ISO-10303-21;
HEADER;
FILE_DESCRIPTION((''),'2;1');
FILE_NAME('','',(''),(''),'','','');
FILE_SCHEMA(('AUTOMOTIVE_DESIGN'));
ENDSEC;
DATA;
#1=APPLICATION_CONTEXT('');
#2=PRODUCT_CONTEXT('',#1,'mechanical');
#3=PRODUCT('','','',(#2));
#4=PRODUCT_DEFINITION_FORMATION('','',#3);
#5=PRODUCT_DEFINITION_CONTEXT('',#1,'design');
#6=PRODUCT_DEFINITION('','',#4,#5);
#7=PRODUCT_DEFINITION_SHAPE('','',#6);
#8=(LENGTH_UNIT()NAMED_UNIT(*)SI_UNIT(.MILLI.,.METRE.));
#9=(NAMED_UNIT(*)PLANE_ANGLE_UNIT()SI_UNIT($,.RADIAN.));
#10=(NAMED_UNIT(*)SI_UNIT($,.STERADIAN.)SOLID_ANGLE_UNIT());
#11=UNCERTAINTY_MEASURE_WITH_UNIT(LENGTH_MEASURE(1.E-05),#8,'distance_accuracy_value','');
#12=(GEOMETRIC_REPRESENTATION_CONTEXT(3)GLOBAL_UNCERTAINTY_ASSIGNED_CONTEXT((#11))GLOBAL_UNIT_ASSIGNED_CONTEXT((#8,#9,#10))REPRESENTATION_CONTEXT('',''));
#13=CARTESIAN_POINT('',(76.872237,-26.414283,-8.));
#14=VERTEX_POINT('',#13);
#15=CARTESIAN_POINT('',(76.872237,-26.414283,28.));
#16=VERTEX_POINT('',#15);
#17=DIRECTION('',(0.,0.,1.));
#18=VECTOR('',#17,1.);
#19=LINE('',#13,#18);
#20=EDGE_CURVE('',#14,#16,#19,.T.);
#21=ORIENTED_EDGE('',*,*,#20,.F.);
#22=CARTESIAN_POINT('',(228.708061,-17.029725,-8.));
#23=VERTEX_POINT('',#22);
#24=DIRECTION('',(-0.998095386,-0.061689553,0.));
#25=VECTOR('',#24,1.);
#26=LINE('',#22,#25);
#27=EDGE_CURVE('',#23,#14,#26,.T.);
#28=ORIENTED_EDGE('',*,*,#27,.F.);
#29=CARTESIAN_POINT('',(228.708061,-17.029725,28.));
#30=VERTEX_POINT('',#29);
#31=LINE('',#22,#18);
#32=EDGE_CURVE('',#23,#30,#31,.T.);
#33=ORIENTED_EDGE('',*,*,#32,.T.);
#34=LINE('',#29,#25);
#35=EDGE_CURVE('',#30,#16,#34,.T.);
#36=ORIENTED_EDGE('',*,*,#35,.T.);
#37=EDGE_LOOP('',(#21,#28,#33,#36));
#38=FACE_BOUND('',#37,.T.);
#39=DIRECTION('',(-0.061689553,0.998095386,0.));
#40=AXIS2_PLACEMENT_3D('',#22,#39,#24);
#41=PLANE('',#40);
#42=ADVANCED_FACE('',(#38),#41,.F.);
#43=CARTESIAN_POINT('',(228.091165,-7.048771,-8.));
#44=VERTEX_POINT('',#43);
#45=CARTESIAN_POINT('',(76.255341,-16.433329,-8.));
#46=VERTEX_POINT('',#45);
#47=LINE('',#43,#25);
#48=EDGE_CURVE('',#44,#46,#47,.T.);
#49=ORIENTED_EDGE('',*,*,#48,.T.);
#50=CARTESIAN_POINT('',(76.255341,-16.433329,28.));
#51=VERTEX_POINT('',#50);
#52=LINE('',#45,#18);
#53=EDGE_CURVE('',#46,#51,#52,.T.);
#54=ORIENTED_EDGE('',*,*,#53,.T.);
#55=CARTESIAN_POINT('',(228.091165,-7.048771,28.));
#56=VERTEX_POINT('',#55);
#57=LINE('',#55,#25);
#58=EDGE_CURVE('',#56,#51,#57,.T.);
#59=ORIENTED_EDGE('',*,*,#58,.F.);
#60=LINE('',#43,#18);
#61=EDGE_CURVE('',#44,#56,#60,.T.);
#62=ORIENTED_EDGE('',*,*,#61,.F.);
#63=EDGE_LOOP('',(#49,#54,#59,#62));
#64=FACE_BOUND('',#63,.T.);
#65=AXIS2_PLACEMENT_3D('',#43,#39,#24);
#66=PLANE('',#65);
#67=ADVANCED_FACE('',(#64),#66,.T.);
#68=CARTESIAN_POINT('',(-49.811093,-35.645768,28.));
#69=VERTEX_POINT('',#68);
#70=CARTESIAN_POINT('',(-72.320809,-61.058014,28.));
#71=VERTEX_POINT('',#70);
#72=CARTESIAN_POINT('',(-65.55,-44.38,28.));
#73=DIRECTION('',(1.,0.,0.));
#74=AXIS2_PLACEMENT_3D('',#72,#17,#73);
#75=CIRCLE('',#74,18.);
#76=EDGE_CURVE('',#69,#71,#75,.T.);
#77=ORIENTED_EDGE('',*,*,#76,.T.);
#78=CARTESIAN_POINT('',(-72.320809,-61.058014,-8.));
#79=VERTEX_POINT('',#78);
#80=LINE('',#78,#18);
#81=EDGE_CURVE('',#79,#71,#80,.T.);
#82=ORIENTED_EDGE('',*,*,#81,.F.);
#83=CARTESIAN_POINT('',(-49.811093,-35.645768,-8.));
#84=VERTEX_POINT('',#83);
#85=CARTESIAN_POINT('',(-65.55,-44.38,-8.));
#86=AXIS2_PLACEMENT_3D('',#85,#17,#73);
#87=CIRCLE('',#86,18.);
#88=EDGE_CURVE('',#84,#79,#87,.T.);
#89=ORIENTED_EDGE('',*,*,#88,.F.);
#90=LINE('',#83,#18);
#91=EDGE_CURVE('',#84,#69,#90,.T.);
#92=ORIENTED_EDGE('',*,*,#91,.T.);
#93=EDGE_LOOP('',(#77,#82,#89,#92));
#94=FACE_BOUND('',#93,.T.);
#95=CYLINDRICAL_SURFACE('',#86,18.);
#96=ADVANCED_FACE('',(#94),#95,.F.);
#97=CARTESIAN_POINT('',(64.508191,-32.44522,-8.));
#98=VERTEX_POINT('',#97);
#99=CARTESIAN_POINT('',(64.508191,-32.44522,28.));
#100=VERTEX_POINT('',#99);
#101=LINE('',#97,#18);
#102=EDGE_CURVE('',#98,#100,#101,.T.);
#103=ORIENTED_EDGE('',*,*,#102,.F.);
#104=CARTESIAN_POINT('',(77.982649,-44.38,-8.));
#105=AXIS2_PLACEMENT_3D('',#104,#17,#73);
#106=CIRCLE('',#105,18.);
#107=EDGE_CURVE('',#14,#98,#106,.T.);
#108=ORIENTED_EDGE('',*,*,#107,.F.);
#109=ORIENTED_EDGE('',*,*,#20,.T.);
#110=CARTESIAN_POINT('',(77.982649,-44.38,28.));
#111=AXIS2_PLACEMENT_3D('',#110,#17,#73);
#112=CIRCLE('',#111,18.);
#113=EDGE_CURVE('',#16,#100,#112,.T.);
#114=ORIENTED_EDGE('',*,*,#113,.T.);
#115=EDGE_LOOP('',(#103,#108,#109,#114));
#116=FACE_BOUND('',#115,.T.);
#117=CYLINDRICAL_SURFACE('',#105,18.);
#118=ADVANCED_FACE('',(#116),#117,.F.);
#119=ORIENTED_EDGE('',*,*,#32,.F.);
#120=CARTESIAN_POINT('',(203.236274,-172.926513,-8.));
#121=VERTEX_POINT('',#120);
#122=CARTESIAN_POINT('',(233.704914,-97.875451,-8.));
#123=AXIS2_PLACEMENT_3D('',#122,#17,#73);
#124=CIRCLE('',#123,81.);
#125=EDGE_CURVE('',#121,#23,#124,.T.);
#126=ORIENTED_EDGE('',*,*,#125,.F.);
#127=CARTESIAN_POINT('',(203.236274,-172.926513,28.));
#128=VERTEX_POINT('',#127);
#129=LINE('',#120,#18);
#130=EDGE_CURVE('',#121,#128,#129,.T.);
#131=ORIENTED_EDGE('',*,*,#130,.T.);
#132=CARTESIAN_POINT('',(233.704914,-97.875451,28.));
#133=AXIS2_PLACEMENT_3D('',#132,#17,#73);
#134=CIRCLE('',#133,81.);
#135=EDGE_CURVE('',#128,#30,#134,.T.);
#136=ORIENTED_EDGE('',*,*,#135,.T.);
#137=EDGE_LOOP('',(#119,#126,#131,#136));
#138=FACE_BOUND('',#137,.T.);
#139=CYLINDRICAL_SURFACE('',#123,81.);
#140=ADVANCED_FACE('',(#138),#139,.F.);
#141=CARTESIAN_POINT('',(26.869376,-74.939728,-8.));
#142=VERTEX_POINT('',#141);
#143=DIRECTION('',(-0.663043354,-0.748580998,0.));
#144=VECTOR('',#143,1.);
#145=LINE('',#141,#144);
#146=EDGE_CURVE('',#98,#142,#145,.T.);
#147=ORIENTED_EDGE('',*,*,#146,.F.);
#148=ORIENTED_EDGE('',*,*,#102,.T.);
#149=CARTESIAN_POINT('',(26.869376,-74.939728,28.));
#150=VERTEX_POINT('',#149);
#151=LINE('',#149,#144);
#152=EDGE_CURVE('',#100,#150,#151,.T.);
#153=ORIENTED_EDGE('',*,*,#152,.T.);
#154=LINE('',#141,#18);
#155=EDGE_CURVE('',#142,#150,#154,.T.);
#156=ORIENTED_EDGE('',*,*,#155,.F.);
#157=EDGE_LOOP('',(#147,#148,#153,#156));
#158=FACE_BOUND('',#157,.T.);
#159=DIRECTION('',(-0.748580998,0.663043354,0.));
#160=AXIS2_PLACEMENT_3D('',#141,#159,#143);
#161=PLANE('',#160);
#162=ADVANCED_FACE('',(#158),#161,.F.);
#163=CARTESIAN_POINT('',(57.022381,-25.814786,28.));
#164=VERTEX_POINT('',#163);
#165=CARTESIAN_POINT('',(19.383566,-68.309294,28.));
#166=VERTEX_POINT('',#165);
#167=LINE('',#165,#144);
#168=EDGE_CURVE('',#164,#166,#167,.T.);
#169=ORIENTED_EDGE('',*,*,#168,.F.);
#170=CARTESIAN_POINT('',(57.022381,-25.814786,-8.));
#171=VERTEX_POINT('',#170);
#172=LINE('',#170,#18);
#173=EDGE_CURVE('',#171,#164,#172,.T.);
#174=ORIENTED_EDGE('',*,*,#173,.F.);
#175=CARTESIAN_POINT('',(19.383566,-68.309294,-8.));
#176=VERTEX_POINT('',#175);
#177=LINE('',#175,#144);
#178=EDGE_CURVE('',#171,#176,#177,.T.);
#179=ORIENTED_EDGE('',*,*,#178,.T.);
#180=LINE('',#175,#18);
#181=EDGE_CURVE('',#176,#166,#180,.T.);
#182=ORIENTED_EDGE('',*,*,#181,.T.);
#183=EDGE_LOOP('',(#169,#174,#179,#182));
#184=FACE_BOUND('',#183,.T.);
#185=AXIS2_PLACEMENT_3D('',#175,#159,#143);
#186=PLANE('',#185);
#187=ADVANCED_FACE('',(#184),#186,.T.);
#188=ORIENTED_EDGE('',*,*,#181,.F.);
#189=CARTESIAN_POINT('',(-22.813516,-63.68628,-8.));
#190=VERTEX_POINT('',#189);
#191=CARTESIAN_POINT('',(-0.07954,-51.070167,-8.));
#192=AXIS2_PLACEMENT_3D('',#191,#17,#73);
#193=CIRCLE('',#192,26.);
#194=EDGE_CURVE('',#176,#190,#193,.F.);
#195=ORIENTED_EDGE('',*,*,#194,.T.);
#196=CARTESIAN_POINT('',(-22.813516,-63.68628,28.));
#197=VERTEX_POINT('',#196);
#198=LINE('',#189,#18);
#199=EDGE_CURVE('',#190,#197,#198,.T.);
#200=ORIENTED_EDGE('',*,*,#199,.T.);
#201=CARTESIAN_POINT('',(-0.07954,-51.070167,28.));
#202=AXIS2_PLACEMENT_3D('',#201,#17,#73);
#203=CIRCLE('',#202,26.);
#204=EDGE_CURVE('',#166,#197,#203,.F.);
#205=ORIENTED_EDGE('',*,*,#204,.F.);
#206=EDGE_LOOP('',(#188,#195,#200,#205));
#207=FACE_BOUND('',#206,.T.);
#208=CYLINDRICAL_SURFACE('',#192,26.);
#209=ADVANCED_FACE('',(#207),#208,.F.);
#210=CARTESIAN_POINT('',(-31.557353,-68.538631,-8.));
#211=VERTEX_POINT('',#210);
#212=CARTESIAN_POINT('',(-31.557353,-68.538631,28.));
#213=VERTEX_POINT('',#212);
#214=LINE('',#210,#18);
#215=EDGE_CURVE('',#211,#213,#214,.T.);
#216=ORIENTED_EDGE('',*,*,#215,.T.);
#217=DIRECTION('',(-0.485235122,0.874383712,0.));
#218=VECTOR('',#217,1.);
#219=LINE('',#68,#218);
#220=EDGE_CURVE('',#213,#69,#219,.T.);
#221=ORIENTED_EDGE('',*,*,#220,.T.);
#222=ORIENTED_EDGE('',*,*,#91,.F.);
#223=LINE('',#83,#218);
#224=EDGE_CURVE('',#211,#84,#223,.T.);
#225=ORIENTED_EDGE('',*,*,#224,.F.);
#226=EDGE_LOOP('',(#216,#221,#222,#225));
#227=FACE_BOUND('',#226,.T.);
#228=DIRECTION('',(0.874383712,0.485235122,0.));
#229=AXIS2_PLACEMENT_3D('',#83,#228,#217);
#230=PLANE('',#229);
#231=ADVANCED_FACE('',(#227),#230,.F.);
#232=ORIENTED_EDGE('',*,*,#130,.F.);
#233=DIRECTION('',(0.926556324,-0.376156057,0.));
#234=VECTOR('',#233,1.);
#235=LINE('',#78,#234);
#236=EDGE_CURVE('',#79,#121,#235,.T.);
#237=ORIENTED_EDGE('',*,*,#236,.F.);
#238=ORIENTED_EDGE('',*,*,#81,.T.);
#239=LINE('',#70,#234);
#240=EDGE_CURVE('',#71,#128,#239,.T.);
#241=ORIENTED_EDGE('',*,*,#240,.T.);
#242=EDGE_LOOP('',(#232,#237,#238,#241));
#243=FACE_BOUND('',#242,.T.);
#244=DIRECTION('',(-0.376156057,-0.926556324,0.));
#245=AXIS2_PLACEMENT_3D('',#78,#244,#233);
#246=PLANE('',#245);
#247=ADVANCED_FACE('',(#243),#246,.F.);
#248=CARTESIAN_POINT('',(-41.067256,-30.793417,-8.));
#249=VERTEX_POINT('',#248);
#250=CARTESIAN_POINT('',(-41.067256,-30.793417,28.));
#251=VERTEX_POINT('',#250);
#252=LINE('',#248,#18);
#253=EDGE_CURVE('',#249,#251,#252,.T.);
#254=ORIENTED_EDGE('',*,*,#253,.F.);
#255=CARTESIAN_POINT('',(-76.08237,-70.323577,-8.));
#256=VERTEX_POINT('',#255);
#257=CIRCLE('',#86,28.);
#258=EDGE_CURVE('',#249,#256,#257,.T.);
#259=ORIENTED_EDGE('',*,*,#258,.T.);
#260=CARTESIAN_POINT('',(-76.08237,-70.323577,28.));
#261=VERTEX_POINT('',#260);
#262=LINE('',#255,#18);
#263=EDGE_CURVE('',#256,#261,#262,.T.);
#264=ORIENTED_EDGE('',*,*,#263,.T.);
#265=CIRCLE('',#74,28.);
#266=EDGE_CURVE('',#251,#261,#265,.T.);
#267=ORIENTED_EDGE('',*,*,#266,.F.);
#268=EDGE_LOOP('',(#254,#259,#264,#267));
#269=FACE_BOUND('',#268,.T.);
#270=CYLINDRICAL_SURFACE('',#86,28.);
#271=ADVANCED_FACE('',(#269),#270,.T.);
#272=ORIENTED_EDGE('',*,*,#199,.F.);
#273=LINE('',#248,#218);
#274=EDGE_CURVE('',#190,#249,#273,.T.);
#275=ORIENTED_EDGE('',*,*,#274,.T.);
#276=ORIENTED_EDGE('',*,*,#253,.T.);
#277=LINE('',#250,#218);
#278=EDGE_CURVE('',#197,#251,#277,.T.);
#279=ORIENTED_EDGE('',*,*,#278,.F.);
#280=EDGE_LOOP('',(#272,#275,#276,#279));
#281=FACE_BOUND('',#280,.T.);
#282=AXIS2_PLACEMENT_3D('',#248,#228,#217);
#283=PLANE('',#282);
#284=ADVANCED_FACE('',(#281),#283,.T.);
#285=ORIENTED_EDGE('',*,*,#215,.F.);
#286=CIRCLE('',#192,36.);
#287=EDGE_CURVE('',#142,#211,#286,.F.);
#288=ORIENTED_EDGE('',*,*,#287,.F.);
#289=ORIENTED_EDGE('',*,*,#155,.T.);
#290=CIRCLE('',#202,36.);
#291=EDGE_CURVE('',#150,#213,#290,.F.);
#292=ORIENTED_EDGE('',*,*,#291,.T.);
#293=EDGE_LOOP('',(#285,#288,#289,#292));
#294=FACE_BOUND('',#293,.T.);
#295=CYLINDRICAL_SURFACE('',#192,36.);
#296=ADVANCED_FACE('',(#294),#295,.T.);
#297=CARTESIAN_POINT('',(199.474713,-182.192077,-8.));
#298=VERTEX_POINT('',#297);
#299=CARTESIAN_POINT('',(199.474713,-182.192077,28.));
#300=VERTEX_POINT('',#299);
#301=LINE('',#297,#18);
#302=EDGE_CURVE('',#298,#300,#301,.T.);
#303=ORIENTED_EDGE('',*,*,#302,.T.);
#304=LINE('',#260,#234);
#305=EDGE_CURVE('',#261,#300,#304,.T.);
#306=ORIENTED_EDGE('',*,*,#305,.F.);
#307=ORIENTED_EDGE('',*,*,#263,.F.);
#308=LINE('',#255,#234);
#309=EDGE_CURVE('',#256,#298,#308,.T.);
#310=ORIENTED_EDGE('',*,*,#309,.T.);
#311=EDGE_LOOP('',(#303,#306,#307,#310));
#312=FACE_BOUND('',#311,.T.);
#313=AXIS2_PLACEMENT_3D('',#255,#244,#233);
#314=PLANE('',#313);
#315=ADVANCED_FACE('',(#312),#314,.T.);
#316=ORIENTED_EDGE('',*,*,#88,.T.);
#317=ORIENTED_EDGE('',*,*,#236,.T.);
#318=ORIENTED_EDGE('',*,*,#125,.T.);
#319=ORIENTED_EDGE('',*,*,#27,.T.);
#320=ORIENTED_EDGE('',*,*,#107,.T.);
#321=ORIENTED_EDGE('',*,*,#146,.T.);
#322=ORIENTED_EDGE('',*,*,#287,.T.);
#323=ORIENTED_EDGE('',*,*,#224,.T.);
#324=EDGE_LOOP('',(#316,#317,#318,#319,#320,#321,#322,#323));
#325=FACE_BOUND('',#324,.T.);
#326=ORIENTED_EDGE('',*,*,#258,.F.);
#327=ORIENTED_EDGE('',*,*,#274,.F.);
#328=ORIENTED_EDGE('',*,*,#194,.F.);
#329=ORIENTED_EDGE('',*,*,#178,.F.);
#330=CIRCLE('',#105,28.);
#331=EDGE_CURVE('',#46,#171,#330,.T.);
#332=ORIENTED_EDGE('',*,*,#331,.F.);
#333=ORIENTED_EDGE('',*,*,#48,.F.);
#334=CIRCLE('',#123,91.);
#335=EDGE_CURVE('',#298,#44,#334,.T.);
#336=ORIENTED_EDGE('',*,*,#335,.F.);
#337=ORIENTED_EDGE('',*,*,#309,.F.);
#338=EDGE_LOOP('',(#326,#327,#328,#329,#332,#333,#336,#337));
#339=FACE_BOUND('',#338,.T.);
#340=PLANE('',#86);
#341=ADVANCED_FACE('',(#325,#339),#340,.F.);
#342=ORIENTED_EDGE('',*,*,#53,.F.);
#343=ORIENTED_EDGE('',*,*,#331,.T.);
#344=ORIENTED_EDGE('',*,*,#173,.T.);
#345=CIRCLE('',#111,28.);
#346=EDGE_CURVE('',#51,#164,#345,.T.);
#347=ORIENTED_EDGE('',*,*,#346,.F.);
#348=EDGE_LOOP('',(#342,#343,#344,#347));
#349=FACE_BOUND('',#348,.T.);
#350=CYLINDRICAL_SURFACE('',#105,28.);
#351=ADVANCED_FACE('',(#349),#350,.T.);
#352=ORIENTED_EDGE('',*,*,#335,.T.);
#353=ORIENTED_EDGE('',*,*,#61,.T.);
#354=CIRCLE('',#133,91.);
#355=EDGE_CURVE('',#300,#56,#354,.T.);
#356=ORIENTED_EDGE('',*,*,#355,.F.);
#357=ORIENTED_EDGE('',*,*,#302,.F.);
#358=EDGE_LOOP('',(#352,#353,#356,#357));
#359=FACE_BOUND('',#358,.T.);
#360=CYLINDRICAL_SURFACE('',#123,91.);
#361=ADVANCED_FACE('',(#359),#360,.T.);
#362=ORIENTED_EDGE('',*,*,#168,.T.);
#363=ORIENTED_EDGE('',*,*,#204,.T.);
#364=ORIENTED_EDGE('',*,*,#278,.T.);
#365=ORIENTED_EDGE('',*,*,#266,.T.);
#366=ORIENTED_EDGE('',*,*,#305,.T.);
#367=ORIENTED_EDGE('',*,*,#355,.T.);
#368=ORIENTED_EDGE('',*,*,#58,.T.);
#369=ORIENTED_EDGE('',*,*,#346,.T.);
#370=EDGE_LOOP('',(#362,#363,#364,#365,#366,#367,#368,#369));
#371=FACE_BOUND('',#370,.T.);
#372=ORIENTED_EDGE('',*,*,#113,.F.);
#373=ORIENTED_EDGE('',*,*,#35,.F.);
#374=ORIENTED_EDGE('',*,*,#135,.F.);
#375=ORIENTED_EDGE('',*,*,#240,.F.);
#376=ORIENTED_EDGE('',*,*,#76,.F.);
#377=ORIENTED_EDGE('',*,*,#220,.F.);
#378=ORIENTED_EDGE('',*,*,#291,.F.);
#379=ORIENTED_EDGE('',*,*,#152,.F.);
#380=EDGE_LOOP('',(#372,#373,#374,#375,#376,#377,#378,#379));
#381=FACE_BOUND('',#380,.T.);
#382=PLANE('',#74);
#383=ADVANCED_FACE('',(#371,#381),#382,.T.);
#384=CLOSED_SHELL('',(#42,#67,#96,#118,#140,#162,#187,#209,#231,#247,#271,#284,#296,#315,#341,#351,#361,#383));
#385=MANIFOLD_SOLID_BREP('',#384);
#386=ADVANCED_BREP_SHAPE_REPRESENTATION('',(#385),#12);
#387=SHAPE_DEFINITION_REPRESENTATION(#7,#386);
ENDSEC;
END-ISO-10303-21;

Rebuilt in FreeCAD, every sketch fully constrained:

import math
import FreeCAD as App
import Part
import Sketcher

V = App.Vector
Q = App.Units.Quantity

doc = App.newDocument("Part")
body = doc.addObject("PartDesign::Body", "Body")

sketch1 = body.newObject("Sketcher::SketchObject", "Sketch")
sketch1.AttachmentSupport = (doc.getObject("XY_Plane"), [""])
sketch1.MapMode = "FlatFace"
sketch1.addGeometry(Part.LineSegment(V(57.022381, -25.814786, 0), V(19.383566, -68.309294, 0)), False)
sketch1.addGeometry(Part.ArcOfCircle(Part.Circle(V(-0.07954, -51.070167, 0), V(0, 0, 1), 26), math.radians(-150.972122), math.radians(-41.532391)), False)
sketch1.addGeometry(Part.LineSegment(V(-22.813516, -63.68628, 0), V(-41.067256, -30.793417, 0)), False)
sketch1.addGeometry(Part.ArcOfCircle(Part.Circle(V(-65.55, -44.38, 0), V(0, 0, 1), 28), math.radians(29.027878), math.radians(247.904218)), False)
sketch1.addGeometry(Part.LineSegment(V(-76.08237, -70.323577, 0), V(199.474713, -182.192077, 0)), False)
sketch1.addGeometry(Part.ArcOfCircle(Part.Circle(V(233.704914, -97.875451, 0), V(0, 0, 1), 91), math.radians(-112.095782), math.radians(93.536797)), False)
sketch1.addGeometry(Part.LineSegment(V(228.091165, -7.048771, 0), V(76.255341, -16.433329, 0)), False)
sketch1.addGeometry(Part.ArcOfCircle(Part.Circle(V(77.982649, -44.38, 0), V(0, 0, 1), 28), math.radians(93.536797), math.radians(138.467609)), False)
sketch1.addGeometry(Part.LineSegment(V(26.869376, -74.939728, 0), V(64.508191, -32.44522, 0)), False)
sketch1.addGeometry(Part.ArcOfCircle(Part.Circle(V(77.982649, -44.38, 0), V(0, 0, 1), 18), math.radians(93.536797), math.radians(138.467609)), False)
sketch1.addGeometry(Part.LineSegment(V(76.872237, -26.414283, 0), V(228.708061, -17.029725, 0)), False)
sketch1.addGeometry(Part.ArcOfCircle(Part.Circle(V(233.704914, -97.875451, 0), V(0, 0, 1), 81), math.radians(-112.095782), math.radians(93.536797)), False)
sketch1.addGeometry(Part.LineSegment(V(203.236274, -172.926513, 0), V(-72.320809, -61.058014, 0)), False)
sketch1.addGeometry(Part.ArcOfCircle(Part.Circle(V(-65.55, -44.38, 0), V(0, 0, 1), 18), math.radians(29.027878), math.radians(247.904218)), False)
sketch1.addGeometry(Part.LineSegment(V(-49.811093, -35.645768, 0), V(-31.557353, -68.538631, 0)), False)
sketch1.addGeometry(Part.ArcOfCircle(Part.Circle(V(-0.07954, -51.070167, 0), V(0, 0, 1), 36), math.radians(-150.972122), math.radians(-41.532391)), False)
sketch1.addConstraint(Sketcher.Constraint("Tangent", 0, 2, 1, 2))
sketch1.addConstraint(Sketcher.Constraint("Tangent", 1, 1, 2, 1))
sketch1.addConstraint(Sketcher.Constraint("Tangent", 2, 2, 3, 1))
sketch1.addConstraint(Sketcher.Constraint("Tangent", 3, 2, 4, 1))
sketch1.addConstraint(Sketcher.Constraint("Tangent", 4, 2, 5, 1))
sketch1.addConstraint(Sketcher.Constraint("Tangent", 5, 2, 6, 1))
sketch1.addConstraint(Sketcher.Constraint("Tangent", 6, 2, 7, 1))
sketch1.addConstraint(Sketcher.Constraint("Tangent", 7, 2, 0, 1))
sketch1.addConstraint(Sketcher.Constraint("Tangent", 8, 2, 9, 2))
sketch1.addConstraint(Sketcher.Constraint("Tangent", 9, 1, 10, 1))
sketch1.addConstraint(Sketcher.Constraint("Tangent", 10, 2, 11, 2))
sketch1.addConstraint(Sketcher.Constraint("Tangent", 11, 1, 12, 1))
sketch1.addConstraint(Sketcher.Constraint("Tangent", 12, 2, 13, 2))
sketch1.addConstraint(Sketcher.Constraint("Tangent", 13, 1, 14, 1))
sketch1.addConstraint(Sketcher.Constraint("Tangent", 14, 2, 15, 1))
sketch1.addConstraint(Sketcher.Constraint("Tangent", 15, 2, 8, 1))
sketch1.addConstraint(Sketcher.Constraint("Coincident", 9, 3, 7, 3))
sketch1.addConstraint(Sketcher.Constraint("Coincident", 11, 3, 5, 3))
sketch1.addConstraint(Sketcher.Constraint("Coincident", 13, 3, 3, 3))
sketch1.addConstraint(Sketcher.Constraint("Coincident", 15, 3, 1, 3))
sketch1.addConstraint(Sketcher.Constraint("Equal", 3, 7))
sketch1.addConstraint(Sketcher.Constraint("Equal", 9, 13))
sketch1.addConstraint(Sketcher.Constraint("Parallel", 0, 8))
sketch1.addConstraint(Sketcher.Constraint("Parallel", 6, 10))
sketch1.addConstraint(Sketcher.Constraint("Horizontal", 3, 3, 7, 3))
sketch1.addConstraint(Sketcher.Constraint("Radius", 1, Q("26 mm")))
sketch1.addConstraint(Sketcher.Constraint("Radius", 3, Q("28 mm")))
sketch1.addConstraint(Sketcher.Constraint("Radius", 5, Q("91 mm")))
sketch1.addConstraint(Sketcher.Constraint("Radius", 9, Q("18 mm")))
sketch1.addConstraint(Sketcher.Constraint("DistanceX", 3, 3, -1, 1, Q("65.55 mm")))
sketch1.addConstraint(Sketcher.Constraint("DistanceY", 3, 3, -1, 1, Q("44.38 mm")))
sketch1.addConstraint(Sketcher.Constraint("DistanceX", 4, 2, 5, 3, Q("34.230201 mm")))
sketch1.addConstraint(Sketcher.Constraint("Distance", 2, Q("37.61834 mm")))
sketch1.addConstraint(Sketcher.Constraint("Distance", 4, Q("297.399171 mm")))
sketch1.addConstraint(Sketcher.Constraint("DistanceX", 1, 3, -1, 1, Q("0.07954 mm")))
sketch1.addConstraint(Sketcher.Constraint("DistanceX", -1, 1, 7, 3, Q("77.982649 mm")))
pad1 = body.newObject("PartDesign::Pad", "Pad")
pad1.Profile = sketch1
pad1.Type = "TwoLengths"
pad1.Length = 28
pad1.Length2 = 8

doc.recompute()
